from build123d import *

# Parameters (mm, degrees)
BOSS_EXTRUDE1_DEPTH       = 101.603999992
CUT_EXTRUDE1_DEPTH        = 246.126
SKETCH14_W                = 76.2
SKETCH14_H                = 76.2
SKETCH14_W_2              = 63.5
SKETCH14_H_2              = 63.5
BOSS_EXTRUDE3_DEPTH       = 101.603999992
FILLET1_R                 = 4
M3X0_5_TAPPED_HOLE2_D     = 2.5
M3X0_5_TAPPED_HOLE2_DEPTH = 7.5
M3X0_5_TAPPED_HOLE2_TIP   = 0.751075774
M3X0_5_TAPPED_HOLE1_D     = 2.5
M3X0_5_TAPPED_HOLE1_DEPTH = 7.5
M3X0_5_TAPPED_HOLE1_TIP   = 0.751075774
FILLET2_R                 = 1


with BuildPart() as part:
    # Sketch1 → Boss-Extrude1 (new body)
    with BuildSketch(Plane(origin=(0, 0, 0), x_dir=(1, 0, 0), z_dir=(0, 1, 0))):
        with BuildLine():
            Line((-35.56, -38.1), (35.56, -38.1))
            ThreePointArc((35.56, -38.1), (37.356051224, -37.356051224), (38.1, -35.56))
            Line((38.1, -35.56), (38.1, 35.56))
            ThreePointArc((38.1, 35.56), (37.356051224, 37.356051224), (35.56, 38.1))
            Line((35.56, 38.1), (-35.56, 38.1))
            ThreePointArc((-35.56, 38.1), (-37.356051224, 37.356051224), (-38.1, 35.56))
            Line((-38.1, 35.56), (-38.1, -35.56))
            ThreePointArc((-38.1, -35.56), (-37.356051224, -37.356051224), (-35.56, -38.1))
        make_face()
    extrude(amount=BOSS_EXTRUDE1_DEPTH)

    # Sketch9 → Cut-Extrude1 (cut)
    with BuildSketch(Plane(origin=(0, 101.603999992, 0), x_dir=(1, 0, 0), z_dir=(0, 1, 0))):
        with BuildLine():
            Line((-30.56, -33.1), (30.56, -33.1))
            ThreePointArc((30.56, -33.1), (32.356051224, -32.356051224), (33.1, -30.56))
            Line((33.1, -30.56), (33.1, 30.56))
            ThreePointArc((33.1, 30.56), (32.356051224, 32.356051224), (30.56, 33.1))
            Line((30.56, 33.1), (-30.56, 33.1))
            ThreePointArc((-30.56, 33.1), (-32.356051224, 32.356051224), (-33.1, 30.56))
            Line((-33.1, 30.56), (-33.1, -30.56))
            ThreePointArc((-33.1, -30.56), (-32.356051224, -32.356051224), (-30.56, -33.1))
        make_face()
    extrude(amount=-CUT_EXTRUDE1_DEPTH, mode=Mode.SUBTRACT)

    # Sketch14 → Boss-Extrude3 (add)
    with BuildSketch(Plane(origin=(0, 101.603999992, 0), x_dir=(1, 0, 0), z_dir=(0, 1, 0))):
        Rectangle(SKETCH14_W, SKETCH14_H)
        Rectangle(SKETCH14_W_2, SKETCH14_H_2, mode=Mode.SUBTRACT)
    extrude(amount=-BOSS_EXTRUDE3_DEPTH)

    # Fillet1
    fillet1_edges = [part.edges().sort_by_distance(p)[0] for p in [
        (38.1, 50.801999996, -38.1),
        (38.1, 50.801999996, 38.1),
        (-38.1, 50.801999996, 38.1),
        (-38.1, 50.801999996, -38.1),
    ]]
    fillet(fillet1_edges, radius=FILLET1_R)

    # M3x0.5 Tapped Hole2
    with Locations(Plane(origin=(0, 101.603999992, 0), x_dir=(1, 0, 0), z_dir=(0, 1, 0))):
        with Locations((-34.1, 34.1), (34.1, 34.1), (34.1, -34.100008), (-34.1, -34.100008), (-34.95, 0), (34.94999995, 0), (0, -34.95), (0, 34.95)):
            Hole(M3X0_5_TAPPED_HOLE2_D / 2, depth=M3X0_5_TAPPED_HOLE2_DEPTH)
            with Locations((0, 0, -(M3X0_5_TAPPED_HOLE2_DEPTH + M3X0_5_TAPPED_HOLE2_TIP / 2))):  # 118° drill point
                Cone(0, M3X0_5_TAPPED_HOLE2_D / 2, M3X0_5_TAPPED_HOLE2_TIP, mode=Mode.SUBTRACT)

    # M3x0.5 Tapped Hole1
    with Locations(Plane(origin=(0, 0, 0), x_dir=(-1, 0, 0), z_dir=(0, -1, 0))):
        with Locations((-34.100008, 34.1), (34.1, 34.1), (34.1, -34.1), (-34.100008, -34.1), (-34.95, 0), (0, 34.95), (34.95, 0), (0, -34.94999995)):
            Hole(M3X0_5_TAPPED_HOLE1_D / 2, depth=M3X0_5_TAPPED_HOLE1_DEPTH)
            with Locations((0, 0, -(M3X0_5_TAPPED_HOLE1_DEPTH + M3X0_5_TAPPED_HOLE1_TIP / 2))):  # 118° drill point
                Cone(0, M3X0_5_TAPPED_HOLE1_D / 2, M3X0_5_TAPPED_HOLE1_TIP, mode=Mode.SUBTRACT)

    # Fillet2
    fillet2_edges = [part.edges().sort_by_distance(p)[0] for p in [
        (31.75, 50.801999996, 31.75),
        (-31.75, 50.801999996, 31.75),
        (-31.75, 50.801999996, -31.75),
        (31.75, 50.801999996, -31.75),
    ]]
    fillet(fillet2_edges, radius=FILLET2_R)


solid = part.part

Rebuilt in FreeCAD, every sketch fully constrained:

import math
import FreeCAD as App
import Part
import Sketcher
Q = App.Units.Quantity


def edges_at(feature, points):
    """Names of the edges that pass closest to the given points."""
    edges = feature.Shape.Edges
    near = lambda p: min(range(len(edges)), key=lambda i: edges[i].distToShape(Part.Vertex(*p))[0])
    return sorted({f"Edge{near(p) + 1}" for p in points})


def add_polygon(sketch, points):
    """Adds a closed chain of lines whose ends are joined by coincident constraints."""
    first, n = sketch.GeometryCount, len(points)
    for a, b in zip(points, points[1:] + points[:1]):
        sketch.addGeometry(Part.LineSegment(App.Vector(*a, 0), App.Vector(*b, 0)), False)
    for i in range(n):
        sketch.addConstraint(Sketcher.Constraint("Coincident", first + i, 2, first + (i + 1) % n, 1))

doc = App.newDocument("Part")
params = doc.addObject("Spreadsheet::Sheet", "Params")
for row, (alias, value) in enumerate([
    ("sketch1_radius", "0.1 in"),
    ("sketch1_width", "2.8 in"),
    ("pad1_length", "101.604 mm"),
    ("sketch2_radius", "0.1 in"),
    ("pocket1_length", "9.69 in"),
    ("sketch3_width", "3 in"),
    ("sketch3_width2", "2.5 in"),
    ("pad2_length", "101.604 mm"),
    ("fillet_radius", "4 mm"),
    ("hole_diameter", "2.5 mm"),
    ("hole_depth", "7.5 mm"),
    ("hole2_diameter", "2.5 mm"),
    ("hole2_depth", "7.5 mm"),
    ("fillet2_radius", "1 mm"),
], start=1):
    params.set(f"A{row}", alias)
    params.set(f"B{row}", "=" + value)
    params.setAlias(f"B{row}", alias)

body = doc.addObject("PartDesign::Body", "Body")

sketch1 = body.newObject("Sketcher::SketchObject", "Sketch")
sketch1.AttachmentSupport = (doc.getObject("XZ_Plane"), [""])
sketch1.MapMode = "FlatFace"
sketch1.addGeometry([
    Part.LineSegment(App.Vector(-35.6, 38.1, 0), App.Vector(35.6, 38.1, 0)),
    Part.ArcOfCircle(Part.Circle(App.Vector(35.6, 35.6, 0), App.Vector(0, 0, 1), 2.5), math.radians(0), math.radians(90)),
    Part.LineSegment(App.Vector(38.1, 35.6, 0), App.Vector(38.1, -35.6, 0)),
    Part.ArcOfCircle(Part.Circle(App.Vector(35.6, -35.6, 0), App.Vector(0, 0, 1), 2.5), math.radians(-90), math.radians(0)),
    Part.LineSegment(App.Vector(35.6, -38.1, 0), App.Vector(-35.6, -38.1, 0)),
    Part.ArcOfCircle(Part.Circle(App.Vector(-35.6, -35.6, 0), App.Vector(0, 0, 1), 2.5), math.radians(-180), math.radians(-90)),
    Part.LineSegment(App.Vector(-38.1, -35.6, 0), App.Vector(-38.1, 35.6, 0)),
    Part.ArcOfCircle(Part.Circle(App.Vector(-35.6, 35.6, 0), App.Vector(0, 0, 1), 2.5), math.radians(90), math.radians(180)),
], False)
sketch1.addConstraint([
    Sketcher.Constraint("Tangent", 0, 2, 1, 2),
    Sketcher.Constraint("Tangent", 1, 1, 2, 1),
    Sketcher.Constraint("Tangent", 2, 2, 3, 2),
    Sketcher.Constraint("Tangent", 3, 1, 4, 1),
    Sketcher.Constraint("Tangent", 4, 2, 5, 2),
    Sketcher.Constraint("Tangent", 5, 1, 6, 1),
    Sketcher.Constraint("Tangent", 6, 2, 7, 2),
    Sketcher.Constraint("Tangent", 7, 1, 0, 1),
    Sketcher.Constraint("Horizontal", 0),
    Sketcher.Constraint("Vertical", 2),
    Sketcher.Constraint("Horizontal", 4),
    Sketcher.Constraint("Vertical", 6),
    Sketcher.Constraint("Equal", 1, 3),
    Sketcher.Constraint("Equal", 3, 5),
    Sketcher.Constraint("Equal", 5, 7),
    Sketcher.Constraint("Symmetric", 1, 3, 5, 3, -1, 1),
    Sketcher.Constraint("Equal", 4, 2),
    Sketcher.Constraint("Radius", 1, Q("0.1 in")),
    Sketcher.Constraint("DistanceX", 0, 1, 0, 2, Q("2.8 in")),
])
sketch1.setExpression("Constraints[17]", "Params.sketch1_radius")
sketch1.setExpression("Constraints[18]", "Params.sketch1_width")
pad1 = body.newObject("PartDesign::Pad", "Pad")
pad1.Profile = sketch1
pad1.setExpression("Length", "Params.pad1_length")
pad1.Reversed = True

sketch2 = body.newObject("Sketcher::SketchObject", "Sketch001")
sketch2.AttachmentSupport = (doc.getObject("XZ_Plane"), [""])
sketch2.MapMode = "FlatFace"
sketch2.AttachmentOffset = App.Placement(App.Vector(0, 0, -101.604), App.Rotation())
sketch2.addGeometry([
    Part.LineSegment(App.Vector(-30.6, 33.1, 0), App.Vector(30.6, 33.1, 0)),
    Part.ArcOfCircle(Part.Circle(App.Vector(30.6, 30.6, 0), App.Vector(0, 0, 1), 2.5), math.radians(0), math.radians(90)),
    Part.LineSegment(App.Vector(33.1, 30.6, 0), App.Vector(33.1, -30.6, 0)),
    Part.ArcOfCircle(Part.Circle(App.Vector(30.6, -30.6, 0), App.Vector(0, 0, 1), 2.5), math.radians(-90), math.radians(0)),
    Part.LineSegment(App.Vector(30.6, -33.1, 0), App.Vector(-30.6, -33.1, 0)),
    Part.ArcOfCircle(Part.Circle(App.Vector(-30.6, -30.6, 0), App.Vector(0, 0, 1), 2.5), math.radians(-180), math.radians(-90)),
    Part.LineSegment(App.Vector(-33.1, -30.6, 0), App.Vector(-33.1, 30.6, 0)),
    Part.ArcOfCircle(Part.Circle(App.Vector(-30.6, 30.6, 0), App.Vector(0, 0, 1), 2.5), math.radians(90), math.radians(180)),
], False)
sketch2.addConstraint([
    Sketcher.Constraint("Tangent", 0, 2, 1, 2),
    Sketcher.Constraint("Tangent", 1, 1, 2, 1),
    Sketcher.Constraint("Tangent", 2, 2, 3, 2),
    Sketcher.Constraint("Tangent", 3, 1, 4, 1),
    Sketcher.Constraint("Tangent", 4, 2, 5, 2),
    Sketcher.Constraint("Tangent", 5, 1, 6, 1),
    Sketcher.Constraint("Tangent", 6, 2, 7, 2),
    Sketcher.Constraint("Tangent", 7, 1, 0, 1),
    Sketcher.Constraint("Horizontal", 0),
    Sketcher.Constraint("Vertical", 2),
    Sketcher.Constraint("Horizontal", 4),
    Sketcher.Constraint("Vertical", 6),
    Sketcher.Constraint("Equal", 1, 3),
    Sketcher.Constraint("Equal", 3, 5),
    Sketcher.Constraint("Equal", 5, 7),
    Sketcher.Constraint("Symmetric", 1, 3, 5, 3, -1, 1),
    Sketcher.Constraint("Equal", 4, 2),
    Sketcher.Constraint("Radius", 1, Q("0.1 in")),
    Sketcher.Constraint("DistanceX", 0, 1, 0, 2, 61.12),
])
sketch2.setExpression("Constraints[17]", "Params.sketch2_radius")
pocket1 = body.newObject("PartDesign::Pocket", "Pocket")
pocket1.Profile = sketch2
pocket1.setExpression("Length", "Params.pocket1_length")
pocket1.Reversed = True

sketch3 = body.newObject("Sketcher::SketchObject", "Sketch002")
sketch3.AttachmentSupport = (doc.getObject("XZ_Plane"), [""])
sketch3.MapMode = "FlatFace"
sketch3.AttachmentOffset = App.Placement(App.Vector(0, 0, -101.604), App.Rotation())
add_polygon(sketch3, [(-38, -38), (-38, 38), (38, 38), (38, -38)])
add_polygon(sketch3, [(32, 32), (-32, 32), (-32, -32), (32, -32)])
sketch3.addConstraint([
    Sketcher.Constraint("Vertical", 0),
    Sketcher.Constraint("Horizontal", 1),
    Sketcher.Constraint("Vertical", 2),
    Sketcher.Constraint("Horizontal", 3),
    Sketcher.Constraint("Horizontal", 4),
    Sketcher.Constraint("Vertical", 5),
    Sketcher.Constraint("Horizontal", 6),
    Sketcher.Constraint("Vertical", 7),
    Sketcher.Constraint("Symmetric", 0, 2, 2, 2, -1, 1),
    Sketcher.Constraint("Symmetric", 4, 2, 6, 2, -1, 1),
    Sketcher.Constraint("Equal", 3, 0),
    Sketcher.Constraint("Equal", 6, 5),
    Sketcher.Constraint("DistanceX", 1, 1, 1, 2, Q("3 in")),
    Sketcher.Constraint("DistanceX", 4, 2, 4, 1, Q("2.5 in")),
])
sketch3.setExpression("Constraints[20]", "Params.sketch3_width")
sketch3.setExpression("Constraints[21]", "Params.sketch3_width2")
pad2 = body.newObject("PartDesign::Pad", "Pad001")
pad2.Profile = sketch3
pad2.setExpression("Length", "Params.pad2_length")
doc.recompute()

fillet = body.newObject("PartDesign::Fillet", "Fillet")
fillet.Base = (pad2, edges_at(pad2, [
    (38.1, 50.802, -38.1),
    (38.1, 50.802, 38.1),
    (-38.1, 50.802, 38.1),
    (-38.1, 50.802, -38.1),
]))
fillet.setExpression("Radius", "Params.fillet_radius")

sketch4 = body.newObject("Sketcher::SketchObject", "Sketch003")
sketch4.AttachmentSupport = (doc.getObject("XZ_Plane"), [""])
sketch4.MapMode = "FlatFace"
sketch4.AttachmentOffset = App.Placement(App.Vector(0, 0, -101.604), App.Rotation())
sketch4.addGeometry([
    Part.Circle(App.Vector(-34.1, -34.1, 0), App.Vector(0, 0, 1), 1.2),
    Part.Circle(App.Vector(34.1, -34.1, 0), App.Vector(0, 0, 1), 1.2),
    Part.Circle(App.Vector(34.1, 34.1, 0), App.Vector(0, 0, 1), 1.2),
    Part.Circle(App.Vector(-34.1, 34.1, 0), App.Vector(0, 0, 1), 1.2),
    Part.Circle(App.Vector(-35, 0, 0), App.Vector(0, 0, 1), 1.2),
    Part.Circle(App.Vector(34.9, 0, 0), App.Vector(0, 0, 1), 1.2),
    Part.Circle(App.Vector(0, 35, 0), App.Vector(0, 0, 1), 1.2),
    Part.Circle(App.Vector(0, -35, 0), App.Vector(0, 0, 1), 1.2),
], False)
sketch4.addConstraint([
    Sketcher.Constraint("Equal", 0, 1),
    Sketcher.Constraint("Equal", 1, 2),
    Sketcher.Constraint("Equal", 2, 3),
    Sketcher.Constraint("Equal", 3, 4),
    Sketcher.Constraint("Equal", 4, 5),
    Sketcher.Constraint("Equal", 5, 6),
    Sketcher.Constraint("Equal", 6, 7),
    Sketcher.Constraint("Symmetric", 0, 3, 2, 3, -1, 1),
    Sketcher.Constraint("Symmetric", 1, 3, 3, 3, -1, 1),
    Sketcher.Constraint("Symmetric", 4, 3, 5, 3, -1, 1),
    Sketcher.Constraint("Symmetric", 6, 3, 7, 3, -1, 1),
    Sketcher.Constraint("Symmetric", 0, 3, 1, 3, -2),
    Sketcher.Constraint("PointOnObject", 4, 3, -1),
    Sketcher.Constraint("PointOnObject", 6, 3, -2),
    Sketcher.Constraint("Diameter", 0, 2.5),
    Sketcher.Constraint("DistanceX", 0, 3, -1, 1, 34.1),
    Sketcher.Constraint("DistanceY", 0, 3, -1, 1, 34.1),
    Sketcher.Constraint("DistanceX", 4, 3, -1, 1, 34.95),
    Sketcher.Constraint("DistanceY", -1, 1, 6, 3, 34.95),
])
doc.recompute()
hole = body.newObject("PartDesign::Hole", "Hole")
hole.Profile = sketch4
hole.ThreadType = "None"
hole.setExpression("Diameter", "Params.hole_diameter")
hole.DepthType = "Dimension"
hole.setExpression("Depth", "Params.hole_depth")
hole.DrillPoint = "Angled"
hole.DrillPointAngle = 118
hole.Reversed = True

sketch5 = body.newObject("Sketcher::SketchObject", "Sketch004")
sketch5.AttachmentSupport = (doc.getObject("XZ_Plane"), [""])
sketch5.MapMode = "FlatFace"
sketch5.addGeometry([
    Part.Circle(App.Vector(34.1, -34.1, 0), App.Vector(0, 0, 1), 1.2),
    Part.Circle(App.Vector(-34.1, -34.1, 0), App.Vector(0, 0, 1), 1.2),
    Part.Circle(App.Vector(-34.1, 34.1, 0), App.Vector(0, 0, 1), 1.2),
    Part.Circle(App.Vector(34.1, 34.1, 0), App.Vector(0, 0, 1), 1.2),
    Part.Circle(App.Vector(35, 0, 0), App.Vector(0, 0, 1), 1.2),
    Part.Circle(App.Vector(0, -35, 0), App.Vector(0, 0, 1), 1.2),
    Part.Circle(App.Vector(-35, 0, 0), App.Vector(0, 0, 1), 1.2),
    Part.Circle(App.Vector(0, 34.9, 0), App.Vector(0, 0, 1), 1.2),
], False)
sketch5.addConstraint([
    Sketcher.Constraint("Equal", 0, 1),
    Sketcher.Constraint("Equal", 1, 2),
    Sketcher.Constraint("Equal", 2, 3),
    Sketcher.Constraint("Equal", 3, 4),
    Sketcher.Constraint("Equal", 4, 5),
    Sketcher.Constraint("Equal", 5, 6),
    Sketcher.Constraint("Equal", 6, 7),
    Sketcher.Constraint("Symmetric", 0, 3, 2, 3, -1, 1),
    Sketcher.Constraint("Symmetric", 1, 3, 3, 3, -1, 1),
    Sketcher.Constraint("Symmetric", 4, 3, 6, 3, -1, 1),
    Sketcher.Constraint("Symmetric", 5, 3, 7, 3, -1, 1),
    Sketcher.Constraint("Symmetric", 0, 3, 1, 3, -2),
    Sketcher.Constraint("PointOnObject", 4, 3, -1),
    Sketcher.Constraint("PointOnObject", 5, 3, -2),
    Sketcher.Constraint("Diameter", 0, 2.5),
    Sketcher.Constraint("DistanceY", 0, 3, -1, 1, 34.1),
    Sketcher.Constraint("DistanceX", 1, 3, -1, 1, 34.1),
    Sketcher.Constraint("DistanceX", -1, 1, 4, 3, 34.95),
    Sketcher.Constraint("DistanceY", 5, 3, -1, 1, 34.95),
])
doc.recompute()
hole2 = body.newObject("PartDesign::Hole", "Hole001")
hole2.Profile = sketch5
hole2.ThreadType = "None"
hole2.setExpression("Diameter", "Params.hole2_diameter")
hole2.DepthType = "Dimension"
hole2.setExpression("Depth", "Params.hole2_depth")
hole2.DrillPoint = "Angled"
hole2.DrillPointAngle = 118
doc.recompute()

fillet2 = body.newObject("PartDesign::Fillet", "Fillet001")
fillet2.Base = (hole2, edges_at(hole2, [
    (31.75, 50.802, 31.75),
    (-31.75, 50.802, 31.75),
    (-31.75, 50.802, -31.75),
    (31.75, 50.802, -31.75),
]))
fillet2.setExpression("Radius", "Params.fillet2_radius")

doc.recompute()
